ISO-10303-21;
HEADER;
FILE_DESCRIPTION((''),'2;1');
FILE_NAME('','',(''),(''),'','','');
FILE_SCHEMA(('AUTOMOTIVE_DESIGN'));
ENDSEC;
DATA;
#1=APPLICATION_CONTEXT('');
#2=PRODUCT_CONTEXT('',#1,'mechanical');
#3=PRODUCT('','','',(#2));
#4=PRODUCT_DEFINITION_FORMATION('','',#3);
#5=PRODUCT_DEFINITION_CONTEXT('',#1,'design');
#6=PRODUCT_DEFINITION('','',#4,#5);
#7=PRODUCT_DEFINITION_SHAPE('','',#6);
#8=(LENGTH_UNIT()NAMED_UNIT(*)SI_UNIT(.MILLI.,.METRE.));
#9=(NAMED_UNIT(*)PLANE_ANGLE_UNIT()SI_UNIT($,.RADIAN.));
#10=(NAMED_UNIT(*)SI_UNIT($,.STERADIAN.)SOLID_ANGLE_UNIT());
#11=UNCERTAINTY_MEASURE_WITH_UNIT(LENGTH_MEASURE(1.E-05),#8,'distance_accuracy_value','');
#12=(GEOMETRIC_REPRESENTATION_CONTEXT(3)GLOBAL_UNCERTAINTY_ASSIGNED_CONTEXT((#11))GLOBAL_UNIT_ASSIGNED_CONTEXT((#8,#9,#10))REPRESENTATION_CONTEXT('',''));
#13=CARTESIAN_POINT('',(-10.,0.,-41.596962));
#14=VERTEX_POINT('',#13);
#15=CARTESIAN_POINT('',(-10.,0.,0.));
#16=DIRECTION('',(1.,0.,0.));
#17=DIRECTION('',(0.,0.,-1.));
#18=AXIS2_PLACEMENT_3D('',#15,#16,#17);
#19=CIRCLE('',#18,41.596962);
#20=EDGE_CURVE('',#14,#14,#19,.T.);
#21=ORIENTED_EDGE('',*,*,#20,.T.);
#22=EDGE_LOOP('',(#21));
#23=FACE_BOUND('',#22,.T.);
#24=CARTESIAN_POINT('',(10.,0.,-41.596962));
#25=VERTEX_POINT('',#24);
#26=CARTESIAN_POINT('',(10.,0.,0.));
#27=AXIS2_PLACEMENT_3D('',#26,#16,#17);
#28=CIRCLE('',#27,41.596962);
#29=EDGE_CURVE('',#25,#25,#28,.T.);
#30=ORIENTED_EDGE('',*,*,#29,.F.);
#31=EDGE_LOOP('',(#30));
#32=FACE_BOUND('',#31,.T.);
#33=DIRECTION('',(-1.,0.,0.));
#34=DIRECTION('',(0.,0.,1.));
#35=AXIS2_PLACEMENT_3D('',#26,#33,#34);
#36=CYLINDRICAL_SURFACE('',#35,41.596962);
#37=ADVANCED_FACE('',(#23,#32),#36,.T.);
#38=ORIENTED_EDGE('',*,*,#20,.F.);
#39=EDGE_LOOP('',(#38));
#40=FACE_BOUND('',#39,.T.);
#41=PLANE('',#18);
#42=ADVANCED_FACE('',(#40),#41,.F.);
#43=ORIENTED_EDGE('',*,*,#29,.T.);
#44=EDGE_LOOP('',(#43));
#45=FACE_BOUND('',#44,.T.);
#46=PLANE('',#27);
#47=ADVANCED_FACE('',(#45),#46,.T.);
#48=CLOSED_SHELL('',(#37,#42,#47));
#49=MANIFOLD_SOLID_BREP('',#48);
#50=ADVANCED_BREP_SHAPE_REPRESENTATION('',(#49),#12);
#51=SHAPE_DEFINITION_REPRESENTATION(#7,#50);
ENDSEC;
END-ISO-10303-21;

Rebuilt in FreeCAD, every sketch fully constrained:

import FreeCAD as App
import Part
import Sketcher
Q = App.Units.Quantity

doc = App.newDocument("Part")
body = doc.addObject("PartDesign::Body", "Body")

sketch1 = body.newObject("Sketcher::SketchObject", "Sketch")
sketch1.AttachmentSupport = (doc.getObject("YZ_Plane"), [""])
sketch1.MapMode = "FlatFace"
sketch1.addGeometry(Part.Circle(App.Vector(0, 0, 0), App.Vector(0, 0, 1), 42), False)
sketch1.addConstraint([
    Sketcher.Constraint("Coincident", 0, 3, -1, 1),
    Sketcher.Constraint("Diameter", 0, Q("83.193923 mm")),
])
pad1 = body.newObject("PartDesign::Pad", "Pad")
pad1.Profile = sketch1
pad1.Length = 20
pad1.Midplane = True

doc.recompute()
